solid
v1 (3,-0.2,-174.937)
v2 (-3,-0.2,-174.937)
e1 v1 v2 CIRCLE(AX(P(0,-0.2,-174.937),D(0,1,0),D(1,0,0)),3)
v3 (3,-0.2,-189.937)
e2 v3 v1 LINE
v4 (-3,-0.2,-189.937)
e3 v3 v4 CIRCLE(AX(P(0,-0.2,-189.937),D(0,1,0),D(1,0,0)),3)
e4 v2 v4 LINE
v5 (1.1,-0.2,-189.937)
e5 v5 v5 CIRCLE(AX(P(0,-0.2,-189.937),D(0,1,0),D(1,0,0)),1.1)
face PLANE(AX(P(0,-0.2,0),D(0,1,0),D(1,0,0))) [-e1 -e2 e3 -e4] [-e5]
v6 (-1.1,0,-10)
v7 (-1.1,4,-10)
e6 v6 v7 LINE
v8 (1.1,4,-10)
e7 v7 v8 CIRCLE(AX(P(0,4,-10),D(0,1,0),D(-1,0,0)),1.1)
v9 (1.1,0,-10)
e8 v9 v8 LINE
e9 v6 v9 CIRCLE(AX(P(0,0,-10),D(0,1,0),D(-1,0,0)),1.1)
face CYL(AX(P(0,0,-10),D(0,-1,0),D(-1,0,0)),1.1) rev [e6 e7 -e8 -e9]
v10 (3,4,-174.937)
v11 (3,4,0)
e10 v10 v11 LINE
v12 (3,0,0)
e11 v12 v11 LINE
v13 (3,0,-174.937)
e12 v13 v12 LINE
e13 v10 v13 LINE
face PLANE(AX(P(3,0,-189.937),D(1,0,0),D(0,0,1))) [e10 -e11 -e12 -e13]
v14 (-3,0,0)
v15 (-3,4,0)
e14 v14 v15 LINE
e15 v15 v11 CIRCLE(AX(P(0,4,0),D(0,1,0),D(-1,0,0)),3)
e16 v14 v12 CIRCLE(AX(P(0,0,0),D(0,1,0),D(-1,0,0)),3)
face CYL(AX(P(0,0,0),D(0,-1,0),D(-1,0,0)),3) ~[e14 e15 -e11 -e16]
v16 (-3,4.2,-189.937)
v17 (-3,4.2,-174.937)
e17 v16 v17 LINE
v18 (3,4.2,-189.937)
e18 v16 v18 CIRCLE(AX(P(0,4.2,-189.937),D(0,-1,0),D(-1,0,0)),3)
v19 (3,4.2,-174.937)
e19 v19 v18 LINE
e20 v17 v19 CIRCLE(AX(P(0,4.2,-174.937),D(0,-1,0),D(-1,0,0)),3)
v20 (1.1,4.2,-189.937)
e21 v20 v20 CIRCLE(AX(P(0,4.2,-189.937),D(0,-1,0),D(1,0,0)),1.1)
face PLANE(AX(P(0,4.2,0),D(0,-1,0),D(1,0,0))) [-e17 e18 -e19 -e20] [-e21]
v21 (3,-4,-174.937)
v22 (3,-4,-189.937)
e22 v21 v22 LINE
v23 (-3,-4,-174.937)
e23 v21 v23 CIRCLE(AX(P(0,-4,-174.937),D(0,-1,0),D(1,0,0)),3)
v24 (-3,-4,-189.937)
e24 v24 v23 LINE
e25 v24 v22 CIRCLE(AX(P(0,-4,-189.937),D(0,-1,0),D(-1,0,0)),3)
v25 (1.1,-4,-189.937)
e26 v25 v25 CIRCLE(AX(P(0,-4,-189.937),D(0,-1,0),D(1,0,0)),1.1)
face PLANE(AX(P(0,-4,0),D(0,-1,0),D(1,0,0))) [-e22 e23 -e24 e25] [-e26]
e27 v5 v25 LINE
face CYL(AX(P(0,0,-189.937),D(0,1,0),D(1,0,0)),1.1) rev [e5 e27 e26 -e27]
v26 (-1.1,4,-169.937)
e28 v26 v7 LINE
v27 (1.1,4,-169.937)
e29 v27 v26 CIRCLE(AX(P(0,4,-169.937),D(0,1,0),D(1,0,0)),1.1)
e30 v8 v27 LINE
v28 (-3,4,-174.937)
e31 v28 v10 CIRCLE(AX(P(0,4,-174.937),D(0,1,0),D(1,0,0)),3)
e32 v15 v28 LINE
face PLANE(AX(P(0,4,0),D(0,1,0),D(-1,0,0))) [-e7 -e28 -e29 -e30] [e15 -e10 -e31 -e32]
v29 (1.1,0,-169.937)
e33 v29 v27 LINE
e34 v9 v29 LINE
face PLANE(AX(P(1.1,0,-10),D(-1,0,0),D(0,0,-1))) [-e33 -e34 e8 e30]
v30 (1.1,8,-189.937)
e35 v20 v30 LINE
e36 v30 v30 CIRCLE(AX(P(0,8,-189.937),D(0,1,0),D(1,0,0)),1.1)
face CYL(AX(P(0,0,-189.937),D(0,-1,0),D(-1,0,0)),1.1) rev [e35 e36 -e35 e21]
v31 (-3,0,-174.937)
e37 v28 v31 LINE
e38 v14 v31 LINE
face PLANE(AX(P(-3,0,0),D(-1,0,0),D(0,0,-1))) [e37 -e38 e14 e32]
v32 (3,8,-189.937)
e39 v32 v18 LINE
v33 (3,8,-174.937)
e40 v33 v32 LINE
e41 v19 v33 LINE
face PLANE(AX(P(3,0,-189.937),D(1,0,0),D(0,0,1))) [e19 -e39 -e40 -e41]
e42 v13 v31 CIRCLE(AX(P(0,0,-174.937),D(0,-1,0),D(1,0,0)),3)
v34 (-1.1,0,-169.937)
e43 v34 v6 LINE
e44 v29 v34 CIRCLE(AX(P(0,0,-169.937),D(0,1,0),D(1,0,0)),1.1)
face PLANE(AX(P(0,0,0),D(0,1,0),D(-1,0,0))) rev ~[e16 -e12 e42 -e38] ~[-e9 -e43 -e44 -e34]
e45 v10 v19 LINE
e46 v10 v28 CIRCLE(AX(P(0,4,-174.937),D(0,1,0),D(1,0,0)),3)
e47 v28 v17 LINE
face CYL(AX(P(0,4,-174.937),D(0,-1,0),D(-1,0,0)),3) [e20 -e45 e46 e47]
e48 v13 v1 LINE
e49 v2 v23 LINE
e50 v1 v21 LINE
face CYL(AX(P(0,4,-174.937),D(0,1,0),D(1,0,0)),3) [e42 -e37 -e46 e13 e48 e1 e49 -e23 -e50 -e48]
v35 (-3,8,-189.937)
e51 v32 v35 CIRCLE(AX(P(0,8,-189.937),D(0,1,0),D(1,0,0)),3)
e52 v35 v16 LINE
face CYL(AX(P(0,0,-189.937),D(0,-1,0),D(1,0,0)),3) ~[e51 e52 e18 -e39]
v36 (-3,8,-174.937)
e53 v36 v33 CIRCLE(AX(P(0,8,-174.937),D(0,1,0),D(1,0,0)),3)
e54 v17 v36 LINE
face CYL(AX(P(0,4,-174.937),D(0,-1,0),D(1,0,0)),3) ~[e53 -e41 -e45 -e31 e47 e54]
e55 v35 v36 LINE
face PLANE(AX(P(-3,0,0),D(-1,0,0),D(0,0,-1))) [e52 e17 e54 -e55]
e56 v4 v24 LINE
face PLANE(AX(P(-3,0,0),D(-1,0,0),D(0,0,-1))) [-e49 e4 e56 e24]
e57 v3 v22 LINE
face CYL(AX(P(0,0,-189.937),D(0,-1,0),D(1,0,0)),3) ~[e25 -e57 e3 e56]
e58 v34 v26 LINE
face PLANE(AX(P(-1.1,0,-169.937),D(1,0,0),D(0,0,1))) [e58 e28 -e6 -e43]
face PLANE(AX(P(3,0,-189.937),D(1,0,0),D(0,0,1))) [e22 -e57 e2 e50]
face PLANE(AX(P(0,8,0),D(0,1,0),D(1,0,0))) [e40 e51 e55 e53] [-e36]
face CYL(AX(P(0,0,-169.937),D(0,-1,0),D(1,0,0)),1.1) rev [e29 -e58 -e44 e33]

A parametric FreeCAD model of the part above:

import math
import FreeCAD as App
import Part
import Sketcher
from FreeCAD import Vector

doc = App.newDocument("Part")
body = doc.addObject("PartDesign::Body", "Body")

sketch1 = body.newObject("Sketcher::SketchObject", "Sketch")
sketch1.AttachmentSupport = (doc.getObject("XZ_Plane"), [""])
sketch1.MapMode = "FlatFace"
sketch1.addGeometry([
    Part.LineSegment(Vector(-3, -189.9, 0), Vector(-3, 0, 0)),
    Part.ArcOfCircle(Part.Circle(Vector(0, 0, 0), Vector(0, 0, 1), 3), math.radians(0), math.radians(180)),
    Part.LineSegment(Vector(3, 0, 0), Vector(3, -189.9, 0)),
    Part.ArcOfCircle(Part.Circle(Vector(0, -189.9, 0), Vector(0, 0, 1), 3), math.radians(180), math.radians(360)),
    Part.Circle(Vector(0, -189.9, 0), Vector(0, 0, 1), 1.1),
    Part.LineSegment(Vector(1.1, -169.9, 0), Vector(1.1, -10, 0)),
    Part.ArcOfCircle(Part.Circle(Vector(0, -10, 0), Vector(0, 0, 1), 1.1), math.radians(0), math.radians(180)),
    Part.LineSegment(Vector(-1.1, -10, 0), Vector(-1.1, -169.9, 0)),
    Part.ArcOfCircle(Part.Circle(Vector(0, -169.9, 0), Vector(0, 0, 1), 1.1), math.radians(180), math.radians(360)),
], False)
sketch1.addConstraint([
    Sketcher.Constraint("Tangent", 0, 2, 1, 2),
    Sketcher.Constraint("Tangent", 1, 1, 2, 1),
    Sketcher.Constraint("Tangent", 2, 2, 3, 2),
    Sketcher.Constraint("Tangent", 3, 1, 0, 1),
    Sketcher.Constraint("Tangent", 5, 2, 6, 1),
    Sketcher.Constraint("Tangent", 6, 2, 7, 1),
    Sketcher.Constraint("Tangent", 7, 2, 8, 1),
    Sketcher.Constraint("Tangent", 8, 2, 5, 1),
    Sketcher.Constraint("Vertical", 0),
    Sketcher.Constraint("Vertical", 2),
    Sketcher.Constraint("Vertical", 5),
    Sketcher.Constraint("Vertical", 7),
    Sketcher.Constraint("Coincident", 1, 3, -1, 1),
    Sketcher.Constraint("Coincident", 4, 3, 3, 3),
    Sketcher.Constraint("Equal", 4, 6),
    Sketcher.Constraint("PointOnObject", 6, 3, -2),
    Sketcher.Constraint("Radius", 1, 3.0),
    Sketcher.Constraint("Diameter", 4, 2.2),
    Sketcher.Constraint("DistanceY", 6, 3, -1, 1, 10.0),
    Sketcher.Constraint("DistanceY", 3, 3, 8, 3, 20.0),
    Sketcher.Constraint("DistanceY", 0, 1, 0, 2, 189.937),
])
pad1 = body.newObject("PartDesign::Pad", "Pad")
pad1.Profile = sketch1
pad1.Length = 4
pad1.Reversed = True

sketch2 = body.newObject("Sketcher::SketchObject", "Sketch001")
sketch2.AttachmentSupport = (doc.getObject("XZ_Plane"), [""])
sketch2.MapMode = "FlatFace"
sketch2.AttachmentOffset = App.Placement(Vector(0, 0, -4), App.Rotation())
sketch2.addGeometry([
    Part.ArcOfCircle(Part.Circle(Vector(0, -189.9, 0), Vector(0, 0, 1), 3), math.radians(180), math.radians(360)),
    Part.LineSegment(Vector(-3, -189.9, 0), Vector(-3, -174.9, 0)),
    Part.ArcOfCircle(Part.Circle(Vector(0, -174.9, 0), Vector(0, 0, 1), 3), math.radians(0), math.radians(180)),
    Part.LineSegment(Vector(3, -174.9, 0), Vector(3, -189.9, 0)),
    Part.Circle(Vector(0, -189.9, 0), Vector(0, 0, 1), 1.1),
], False)
sketch2.addConstraint([
    Sketcher.Constraint("Tangent", 0, 1, 1, 1),
    Sketcher.Constraint("Tangent", 1, 2, 2, 2),
    Sketcher.Constraint("Tangent", 2, 1, 3, 1),
    Sketcher.Constraint("Tangent", 3, 2, 0, 2),
    Sketcher.Constraint("Vertical", 1),
    Sketcher.Constraint("Vertical", 3),
    Sketcher.Constraint("Coincident", 4, 3, 0, 3),
    Sketcher.Constraint("PointOnObject", 0, 3, -2),
    Sketcher.Constraint("Radius", 0, 3.0),
    Sketcher.Constraint("DistanceY", 1, 1, 1, 2, 15.0),
    Sketcher.Constraint("Diameter", 4, 2.2),
    Sketcher.Constraint("DistanceY", 0, 3, -1, 1, 189.937),
])
pad2 = body.newObject("PartDesign::Pad", "Pad001")
pad2.Profile = sketch2
pad2.Length = 4
pad2.Reversed = True

sketch3 = body.newObject("Sketcher::SketchObject", "Sketch002")
sketch3.AttachmentSupport = (doc.getObject("XZ_Plane"), [""])
sketch3.MapMode = "FlatFace"
sketch3.addGeometry([
    Part.LineSegment(Vector(-3, -174.9, 0), Vector(-3, -189.9, 0)),
    Part.ArcOfCircle(Part.Circle(Vector(0, -189.9, 0), Vector(0, 0, 1), 3), math.radians(180), math.radians(360)),
    Part.LineSegment(Vector(3, -189.9, 0), Vector(3, -174.9, 0)),
    Part.ArcOfCircle(Part.Circle(Vector(0, -174.9, 0), Vector(0, 0, 1), 3), math.radians(0), math.radians(180)),
    Part.Circle(Vector(0, -189.9, 0), Vector(0, 0, 1), 1.1),
], False)
sketch3.addConstraint([
    Sketcher.Constraint("Tangent", 0, 2, 1, 1),
    Sketcher.Constraint("Tangent", 1, 2, 2, 1),
    Sketcher.Constraint("Tangent", 2, 2, 3, 1),
    Sketcher.Constraint("Tangent", 3, 2, 0, 1),
    Sketcher.Constraint("Vertical", 0),
    Sketcher.Constraint("Vertical", 2),
    Sketcher.Constraint("Coincident", 4, 3, 1, 3),
    Sketcher.Constraint("PointOnObject", 1, 3, -2),
    Sketcher.Constraint("Radius", 1, 3.0),
    Sketcher.Constraint("DistanceY", 0, 2, 0, 1, 15.0),
    Sketcher.Constraint("Diameter", 4, 2.2),
    Sketcher.Constraint("DistanceY", 1, 3, -1, 1, 189.937),
])
pad3 = body.newObject("PartDesign::Pad", "Pad002")
pad3.Profile = sketch3
pad3.Length = 4

sketch4 = body.newObject("Sketcher::SketchObject", "Sketch003")
sketch4.AttachmentSupport = (doc.getObject("XZ_Plane"), [""])
sketch4.MapMode = "FlatFace"
sketch4.AttachmentOffset = App.Placement(Vector(0, 0, -4), App.Rotation())
sketch4.addGeometry([
    Part.ArcOfCircle(Part.Circle(Vector(0, -189.9, 0), Vector(0, 0, 1), 3), math.radians(180), math.radians(360)),
    Part.LineSegment(Vector(-3, -189.9, 0), Vector(-3, -174.9, 0)),
    Part.ArcOfCircle(Part.Circle(Vector(0, -174.9, 0), Vector(0, 0, 1), 3), math.radians(180), math.radians(360)),
    Part.LineSegment(Vector(3, -174.9, 0), Vector(3, -189.9, 0)),
    Part.Circle(Vector(0, -189.9, 0), Vector(0, 0, 1), 1.1),
], False)
sketch4.addConstraint([
    Sketcher.Constraint("Tangent", 0, 1, 1, 1),
    Sketcher.Constraint("Tangent", 1, 2, 2, 1),
    Sketcher.Constraint("Tangent", 2, 2, 3, 1),
    Sketcher.Constraint("Tangent", 3, 2, 0, 2),
    Sketcher.Constraint("Vertical", 1),
    Sketcher.Constraint("Vertical", 3),
    Sketcher.Constraint("Coincident", 4, 3, 0, 3),
    Sketcher.Constraint("PointOnObject", 0, 3, -2),
    Sketcher.Constraint("Radius", 0, 3.0),
    Sketcher.Constraint("DistanceY", 1, 1, 1, 2, 15.0),
    Sketcher.Constraint("Diameter", 4, 2.2),
    Sketcher.Constraint("DistanceY", 0, 3, -1, 1, 189.937),
])
pocket1 = body.newObject("PartDesign::Pocket", "Pocket")
pocket1.Profile = sketch4
pocket1.Length = 4
pocket1.Reversed = True

sketch5 = body.newObject("Sketcher::SketchObject", "Sketch004")
sketch5.AttachmentSupport = (doc.getObject("XZ_Plane"), [""])
sketch5.MapMode = "FlatFace"
sketch5.addGeometry([
    Part.LineSegment(Vector(-3, -189.9, 0), Vector(-3, -174.9, 0)),
    Part.ArcOfCircle(Part.Circle(Vector(0, -174.9, 0), Vector(0, 0, 1), 3), math.radians(180), math.radians(360)),
    Part.LineSegment(Vector(3, -174.9, 0), Vector(3, -189.9, 0)),
    Part.ArcOfCircle(Part.Circle(Vector(0, -189.9, 0), Vector(0, 0, 1), 3), math.radians(180), math.radians(360)),
    Part.Circle(Vector(0, -189.9, 0), Vector(0, 0, 1), 1.1),
], False)
sketch5.addConstraint([
    Sketcher.Constraint("Tangent", 0, 2, 1, 1),
    Sketcher.Constraint("Tangent", 1, 2, 2, 1),
    Sketcher.Constraint("Tangent", 2, 2, 3, 2),
    Sketcher.Constraint("Tangent", 3, 1, 0, 1),
    Sketcher.Constraint("Vertical", 0),
    Sketcher.Constraint("Vertical", 2),
    Sketcher.Constraint("Coincident", 4, 3, 3, 3),
    Sketcher.Constraint("PointOnObject", 1, 3, -2),
    Sketcher.Constraint("Radius", 1, 3.0),
    Sketcher.Constraint("Diameter", 4, 2.2),
    Sketcher.Constraint("DistanceY", 0, 1, 0, 2, 15.0),
    Sketcher.Constraint("DistanceY", 1, 3, -1, 1, 174.937),
])
pocket2 = body.newObject("PartDesign::Pocket", "Pocket001")
pocket2.Profile = sketch5
pocket2.Length = 0.2
pocket2.Reversed = True

sketch6 = body.newObject("Sketcher::SketchObject", "Sketch005")
sketch6.AttachmentSupport = (doc.getObject("XZ_Plane"), [""])
sketch6.MapMode = "FlatFace"
sketch6.AttachmentOffset = App.Placement(Vector(0, 0, -4), App.Rotation())
sketch6.addGeometry([
    Part.LineSegment(Vector(-3, -174.9, 0), Vector(-3, -189.9, 0)),
    Part.ArcOfCircle(Part.Circle(Vector(0, -189.9, 0), Vector(0, 0, 1), 3), math.radians(180), math.radians(360)),
    Part.LineSegment(Vector(3, -189.9, 0), Vector(3, -174.9, 0)),
    Part.ArcOfCircle(Part.Circle(Vector(0, -174.9, 0), Vector(0, 0, 1), 3), math.radians(180), math.radians(360)),
    Part.Circle(Vector(0, -189.9, 0), Vector(0, 0, 1), 1.1),
], False)
sketch6.addConstraint([
    Sketcher.Constraint("Tangent", 0, 2, 1, 1),
    Sketcher.Constraint("Tangent", 1, 2, 2, 1),
    Sketcher.Constraint("Tangent", 2, 2, 3, 2),
    Sketcher.Constraint("Tangent", 3, 1, 0, 1),
    Sketcher.Constraint("Vertical", 0),
    Sketcher.Constraint("Vertical", 2),
    Sketcher.Constraint("Coincident", 4, 3, 1, 3),
    Sketcher.Constraint("PointOnObject", 1, 3, -2),
    Sketcher.Constraint("Radius", 1, 3.0),
    Sketcher.Constraint("Diameter", 4, 2.2),
    Sketcher.Constraint("DistanceY", 0, 2, 0, 1, 15.0),
    Sketcher.Constraint("DistanceY", 1, 3, -1, 1, 189.937),
])
pocket3 = body.newObject("PartDesign::Pocket", "Pocket002")
pocket3.Profile = sketch6
pocket3.Length = 0.2

doc.recompute()
